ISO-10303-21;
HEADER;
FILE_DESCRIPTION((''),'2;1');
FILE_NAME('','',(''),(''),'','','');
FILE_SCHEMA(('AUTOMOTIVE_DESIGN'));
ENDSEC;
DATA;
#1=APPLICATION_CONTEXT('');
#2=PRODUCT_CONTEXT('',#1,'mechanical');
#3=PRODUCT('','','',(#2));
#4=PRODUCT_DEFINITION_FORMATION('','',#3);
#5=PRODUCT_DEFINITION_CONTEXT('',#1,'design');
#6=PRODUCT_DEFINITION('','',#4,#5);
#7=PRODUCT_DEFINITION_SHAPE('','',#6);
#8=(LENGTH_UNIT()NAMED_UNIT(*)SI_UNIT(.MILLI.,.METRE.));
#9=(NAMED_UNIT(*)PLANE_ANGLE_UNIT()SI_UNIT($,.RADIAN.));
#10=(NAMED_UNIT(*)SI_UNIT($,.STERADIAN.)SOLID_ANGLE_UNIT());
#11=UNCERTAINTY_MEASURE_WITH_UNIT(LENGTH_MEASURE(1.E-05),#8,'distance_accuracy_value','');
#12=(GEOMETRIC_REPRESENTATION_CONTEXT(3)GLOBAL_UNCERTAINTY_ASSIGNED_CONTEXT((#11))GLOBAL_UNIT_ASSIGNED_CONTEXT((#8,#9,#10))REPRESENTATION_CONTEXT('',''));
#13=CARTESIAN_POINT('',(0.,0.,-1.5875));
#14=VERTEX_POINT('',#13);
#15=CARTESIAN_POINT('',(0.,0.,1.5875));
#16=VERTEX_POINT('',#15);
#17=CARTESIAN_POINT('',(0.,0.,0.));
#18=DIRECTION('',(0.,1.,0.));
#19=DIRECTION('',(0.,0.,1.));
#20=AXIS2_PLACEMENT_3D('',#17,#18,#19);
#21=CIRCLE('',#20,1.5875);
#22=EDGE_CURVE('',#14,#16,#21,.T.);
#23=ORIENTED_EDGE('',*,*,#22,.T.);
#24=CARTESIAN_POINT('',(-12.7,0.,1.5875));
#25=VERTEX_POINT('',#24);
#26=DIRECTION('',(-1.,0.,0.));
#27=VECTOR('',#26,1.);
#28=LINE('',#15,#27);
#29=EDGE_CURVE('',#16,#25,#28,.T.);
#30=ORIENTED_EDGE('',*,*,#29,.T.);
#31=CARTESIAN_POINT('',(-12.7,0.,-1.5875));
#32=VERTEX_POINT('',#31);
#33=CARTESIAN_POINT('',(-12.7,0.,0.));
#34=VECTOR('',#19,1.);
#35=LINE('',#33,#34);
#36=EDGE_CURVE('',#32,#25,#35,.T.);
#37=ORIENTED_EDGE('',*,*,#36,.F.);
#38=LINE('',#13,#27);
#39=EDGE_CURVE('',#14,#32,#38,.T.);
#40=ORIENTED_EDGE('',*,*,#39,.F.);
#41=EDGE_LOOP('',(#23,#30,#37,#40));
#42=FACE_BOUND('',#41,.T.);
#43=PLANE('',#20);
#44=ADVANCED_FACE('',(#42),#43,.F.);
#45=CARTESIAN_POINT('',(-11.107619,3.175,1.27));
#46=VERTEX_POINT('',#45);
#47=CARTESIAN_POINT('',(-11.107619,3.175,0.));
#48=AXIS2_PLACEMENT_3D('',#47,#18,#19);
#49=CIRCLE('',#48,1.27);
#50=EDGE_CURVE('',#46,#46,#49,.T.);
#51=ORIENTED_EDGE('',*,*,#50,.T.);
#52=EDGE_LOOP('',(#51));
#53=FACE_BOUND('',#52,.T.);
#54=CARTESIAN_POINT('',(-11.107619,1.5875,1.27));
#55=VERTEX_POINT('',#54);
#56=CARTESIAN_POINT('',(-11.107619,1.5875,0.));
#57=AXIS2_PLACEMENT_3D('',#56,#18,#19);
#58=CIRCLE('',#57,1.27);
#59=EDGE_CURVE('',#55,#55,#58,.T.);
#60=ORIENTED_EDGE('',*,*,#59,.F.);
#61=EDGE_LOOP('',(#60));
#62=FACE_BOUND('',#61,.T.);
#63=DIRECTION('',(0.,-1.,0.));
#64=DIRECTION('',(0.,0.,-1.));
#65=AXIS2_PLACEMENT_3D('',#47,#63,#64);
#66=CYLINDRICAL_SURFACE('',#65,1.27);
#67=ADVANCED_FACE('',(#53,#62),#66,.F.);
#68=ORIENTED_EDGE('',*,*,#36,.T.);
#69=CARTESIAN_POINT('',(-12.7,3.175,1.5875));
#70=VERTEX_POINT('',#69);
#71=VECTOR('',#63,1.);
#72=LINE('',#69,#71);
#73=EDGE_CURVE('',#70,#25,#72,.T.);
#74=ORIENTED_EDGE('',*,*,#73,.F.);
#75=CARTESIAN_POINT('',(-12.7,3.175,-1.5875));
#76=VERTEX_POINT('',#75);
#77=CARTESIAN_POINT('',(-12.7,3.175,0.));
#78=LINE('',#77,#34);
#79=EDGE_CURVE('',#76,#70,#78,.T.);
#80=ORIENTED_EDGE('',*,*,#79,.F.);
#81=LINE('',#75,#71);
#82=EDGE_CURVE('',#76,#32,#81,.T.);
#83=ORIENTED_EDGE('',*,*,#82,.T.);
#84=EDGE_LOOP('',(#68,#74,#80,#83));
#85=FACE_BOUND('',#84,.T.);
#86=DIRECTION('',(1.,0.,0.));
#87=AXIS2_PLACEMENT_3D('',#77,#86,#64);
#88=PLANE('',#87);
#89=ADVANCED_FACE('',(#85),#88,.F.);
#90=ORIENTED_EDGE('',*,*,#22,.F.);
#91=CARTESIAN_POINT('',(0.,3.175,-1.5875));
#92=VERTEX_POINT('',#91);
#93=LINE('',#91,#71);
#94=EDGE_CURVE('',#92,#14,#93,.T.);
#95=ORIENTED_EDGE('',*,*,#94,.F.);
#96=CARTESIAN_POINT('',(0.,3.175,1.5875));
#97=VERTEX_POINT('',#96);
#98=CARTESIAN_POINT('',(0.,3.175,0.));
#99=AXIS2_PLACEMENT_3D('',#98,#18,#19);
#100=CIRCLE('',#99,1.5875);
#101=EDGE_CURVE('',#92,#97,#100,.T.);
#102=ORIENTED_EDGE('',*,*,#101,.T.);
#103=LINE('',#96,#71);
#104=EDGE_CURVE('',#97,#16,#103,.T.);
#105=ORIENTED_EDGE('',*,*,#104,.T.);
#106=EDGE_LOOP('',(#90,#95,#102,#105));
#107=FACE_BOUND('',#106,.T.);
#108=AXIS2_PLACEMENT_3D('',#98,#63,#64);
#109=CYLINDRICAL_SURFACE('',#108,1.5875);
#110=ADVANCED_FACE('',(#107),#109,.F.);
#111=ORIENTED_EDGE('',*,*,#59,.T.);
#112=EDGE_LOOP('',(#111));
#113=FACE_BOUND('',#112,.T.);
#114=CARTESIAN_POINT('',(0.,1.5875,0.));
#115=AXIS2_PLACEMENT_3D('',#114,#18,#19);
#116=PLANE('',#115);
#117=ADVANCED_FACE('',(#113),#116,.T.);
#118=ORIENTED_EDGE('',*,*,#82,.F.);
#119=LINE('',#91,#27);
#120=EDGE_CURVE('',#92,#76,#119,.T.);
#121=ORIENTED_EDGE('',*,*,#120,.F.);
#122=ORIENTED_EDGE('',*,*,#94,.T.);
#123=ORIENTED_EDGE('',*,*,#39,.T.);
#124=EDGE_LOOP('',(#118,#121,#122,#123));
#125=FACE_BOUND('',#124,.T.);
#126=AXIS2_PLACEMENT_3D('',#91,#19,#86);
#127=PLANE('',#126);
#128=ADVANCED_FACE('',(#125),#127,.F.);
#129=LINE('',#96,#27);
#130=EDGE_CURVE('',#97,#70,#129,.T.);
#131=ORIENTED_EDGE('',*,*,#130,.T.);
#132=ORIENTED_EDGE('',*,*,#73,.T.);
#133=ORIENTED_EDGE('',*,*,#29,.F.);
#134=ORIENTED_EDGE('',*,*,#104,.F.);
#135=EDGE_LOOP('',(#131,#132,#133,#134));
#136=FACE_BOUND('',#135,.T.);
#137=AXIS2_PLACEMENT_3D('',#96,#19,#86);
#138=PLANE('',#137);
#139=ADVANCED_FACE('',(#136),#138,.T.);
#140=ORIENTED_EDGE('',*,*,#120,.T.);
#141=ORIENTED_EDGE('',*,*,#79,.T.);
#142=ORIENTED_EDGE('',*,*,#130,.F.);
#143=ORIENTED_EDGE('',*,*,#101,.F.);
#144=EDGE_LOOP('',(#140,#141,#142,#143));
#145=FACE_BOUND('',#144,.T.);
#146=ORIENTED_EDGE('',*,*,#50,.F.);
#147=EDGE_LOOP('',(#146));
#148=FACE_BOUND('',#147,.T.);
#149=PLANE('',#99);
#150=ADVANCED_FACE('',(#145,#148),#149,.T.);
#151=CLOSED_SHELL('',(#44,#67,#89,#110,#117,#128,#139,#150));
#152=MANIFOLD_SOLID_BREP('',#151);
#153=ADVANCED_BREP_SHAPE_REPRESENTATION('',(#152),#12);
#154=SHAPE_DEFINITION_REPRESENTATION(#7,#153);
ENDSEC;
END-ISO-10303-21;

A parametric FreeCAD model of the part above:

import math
import FreeCAD as App
import Part
import Sketcher

V = App.Vector
Q = App.Units.Quantity

doc = App.newDocument("Part")
body = doc.addObject("PartDesign::Body", "Body")

# Sketch on XZ plane
sketch1 = body.newObject("Sketcher::SketchObject", "Sketch")
sketch1.AttachmentSupport = (doc.getObject("XZ_Plane"), [""])
sketch1.MapMode = "FlatFace"
sketch1.addGeometry([
    Part.LineSegment(V(-9.525, -1.5875, 0), V(-9.525, 1.5875, 0)),
    Part.LineSegment(V(-9.525, 1.5875, 0), V(0, 1.5875, 0)),
    Part.ArcOfCircle(Part.Circle(V(0, 0, 0), V(0, 0, 1), 1.5875), math.radians(90), math.radians(270)),
    Part.LineSegment(V(0, -1.5875, 0), V(-9.525, -1.5875, 0)),
], False)
sketch1.addConstraint([
    Sketcher.Constraint("Coincident", 0, 2, 1, 1),
    Sketcher.Constraint("Tangent", 1, 2, 2, 1),
    Sketcher.Constraint("Tangent", 2, 2, 3, 1),
    Sketcher.Constraint("Coincident", 3, 2, 0, 1),
    Sketcher.Constraint("Vertical", 0),
    Sketcher.Constraint("Horizontal", 1),
    Sketcher.Constraint("Horizontal", 3),
    Sketcher.Constraint("Coincident", 2, 3, -1, 1),
    Sketcher.Constraint("Radius", 2, Q("0.0625 in")),
    Sketcher.Constraint("DistanceX", 1, 1, 1, 2, Q("0.375 in")),
])
pad1 = body.newObject("PartDesign::Pad", "Pad")
pad1.Profile = sketch1
pad1.Length = Q("0.125 in")
pad1.Reversed = True

# Sketch on XZ plane
sketch2 = body.newObject("Sketcher::SketchObject", "Sketch001")
sketch2.AttachmentSupport = (doc.getObject("XZ_Plane"), [""])
sketch2.MapMode = "FlatFace"
sketch2.addGeometry([
    Part.LineSegment(V(-12.7, -1.5875, 0), V(-12.7, 1.5875, 0)),  # 0
    Part.LineSegment(V(-12.7, 1.5875, 0), V(-9.525, 1.5875, 0)),  # 1
    Part.LineSegment(V(-9.525, 1.5875, 0), V(-9.525, -1.5875, 0)),  # 2
    Part.LineSegment(V(-9.525, -1.5875, 0), V(-12.7, -1.5875, 0)),  # 3
    Part.Circle(V(-11.107619, 0, 0), V(0, 0, 1), 1.27),  # 4
], False)
sketch2.addConstraint([
    Sketcher.Constraint("Coincident", 0, 2, 1, 1),
    Sketcher.Constraint("Coincident", 1, 2, 2, 1),
    Sketcher.Constraint("Coincident", 2, 2, 3, 1),
    Sketcher.Constraint("Coincident", 3, 2, 0, 1),
    Sketcher.Constraint("Vertical", 0),
    Sketcher.Constraint("Horizontal", 1),
    Sketcher.Constraint("Vertical", 2),
    Sketcher.Constraint("Horizontal", 3),
    Sketcher.Constraint("PointOnObject", 4, 3, -1),
    Sketcher.Constraint("Equal", 3, 0),
    Sketcher.Constraint("Diameter", 4, Q("0.1 in")),
    Sketcher.Constraint("DistanceX", 0, 2, -1, 1, Q("0.5 in")),
    Sketcher.Constraint("DistanceX", 1, 1, 1, 2, Q("0.125 in")),
    Sketcher.Constraint("DistanceY", -1, 1, 0, 2, Q("0.0625 in")),
    Sketcher.Constraint("DistanceX", 4, 3, -1, 1, Q("11.107619 mm")),
])
pad2 = body.newObject("PartDesign::Pad", "Pad001")
pad2.Profile = sketch2
pad2.Length = Q("0.125 in")
pad2.Reversed = True

# Sketch on XZ plane
sketch3 = body.newObject("Sketcher::SketchObject", "Sketch002")
sketch3.AttachmentSupport = (doc.getObject("XZ_Plane"), [""])
sketch3.MapMode = "FlatFace"
sketch3.addGeometry(Part.Circle(V(-11.107619, 0, 0), V(0, 0, 1), 1.27), False)
sketch3.addConstraint([
    Sketcher.Constraint("PointOnObject", 0, 3, -1),
    Sketcher.Constraint("Diameter", 0, Q("0.1 in")),
    Sketcher.Constraint("DistanceX", 0, 3, -1, 1, Q("11.107619 mm")),
])
pad3 = body.newObject("PartDesign::Pad", "Pad002")
pad3.Profile = sketch3
pad3.Length = Q("0.0625 in")
pad3.Reversed = True

doc.recompute()
